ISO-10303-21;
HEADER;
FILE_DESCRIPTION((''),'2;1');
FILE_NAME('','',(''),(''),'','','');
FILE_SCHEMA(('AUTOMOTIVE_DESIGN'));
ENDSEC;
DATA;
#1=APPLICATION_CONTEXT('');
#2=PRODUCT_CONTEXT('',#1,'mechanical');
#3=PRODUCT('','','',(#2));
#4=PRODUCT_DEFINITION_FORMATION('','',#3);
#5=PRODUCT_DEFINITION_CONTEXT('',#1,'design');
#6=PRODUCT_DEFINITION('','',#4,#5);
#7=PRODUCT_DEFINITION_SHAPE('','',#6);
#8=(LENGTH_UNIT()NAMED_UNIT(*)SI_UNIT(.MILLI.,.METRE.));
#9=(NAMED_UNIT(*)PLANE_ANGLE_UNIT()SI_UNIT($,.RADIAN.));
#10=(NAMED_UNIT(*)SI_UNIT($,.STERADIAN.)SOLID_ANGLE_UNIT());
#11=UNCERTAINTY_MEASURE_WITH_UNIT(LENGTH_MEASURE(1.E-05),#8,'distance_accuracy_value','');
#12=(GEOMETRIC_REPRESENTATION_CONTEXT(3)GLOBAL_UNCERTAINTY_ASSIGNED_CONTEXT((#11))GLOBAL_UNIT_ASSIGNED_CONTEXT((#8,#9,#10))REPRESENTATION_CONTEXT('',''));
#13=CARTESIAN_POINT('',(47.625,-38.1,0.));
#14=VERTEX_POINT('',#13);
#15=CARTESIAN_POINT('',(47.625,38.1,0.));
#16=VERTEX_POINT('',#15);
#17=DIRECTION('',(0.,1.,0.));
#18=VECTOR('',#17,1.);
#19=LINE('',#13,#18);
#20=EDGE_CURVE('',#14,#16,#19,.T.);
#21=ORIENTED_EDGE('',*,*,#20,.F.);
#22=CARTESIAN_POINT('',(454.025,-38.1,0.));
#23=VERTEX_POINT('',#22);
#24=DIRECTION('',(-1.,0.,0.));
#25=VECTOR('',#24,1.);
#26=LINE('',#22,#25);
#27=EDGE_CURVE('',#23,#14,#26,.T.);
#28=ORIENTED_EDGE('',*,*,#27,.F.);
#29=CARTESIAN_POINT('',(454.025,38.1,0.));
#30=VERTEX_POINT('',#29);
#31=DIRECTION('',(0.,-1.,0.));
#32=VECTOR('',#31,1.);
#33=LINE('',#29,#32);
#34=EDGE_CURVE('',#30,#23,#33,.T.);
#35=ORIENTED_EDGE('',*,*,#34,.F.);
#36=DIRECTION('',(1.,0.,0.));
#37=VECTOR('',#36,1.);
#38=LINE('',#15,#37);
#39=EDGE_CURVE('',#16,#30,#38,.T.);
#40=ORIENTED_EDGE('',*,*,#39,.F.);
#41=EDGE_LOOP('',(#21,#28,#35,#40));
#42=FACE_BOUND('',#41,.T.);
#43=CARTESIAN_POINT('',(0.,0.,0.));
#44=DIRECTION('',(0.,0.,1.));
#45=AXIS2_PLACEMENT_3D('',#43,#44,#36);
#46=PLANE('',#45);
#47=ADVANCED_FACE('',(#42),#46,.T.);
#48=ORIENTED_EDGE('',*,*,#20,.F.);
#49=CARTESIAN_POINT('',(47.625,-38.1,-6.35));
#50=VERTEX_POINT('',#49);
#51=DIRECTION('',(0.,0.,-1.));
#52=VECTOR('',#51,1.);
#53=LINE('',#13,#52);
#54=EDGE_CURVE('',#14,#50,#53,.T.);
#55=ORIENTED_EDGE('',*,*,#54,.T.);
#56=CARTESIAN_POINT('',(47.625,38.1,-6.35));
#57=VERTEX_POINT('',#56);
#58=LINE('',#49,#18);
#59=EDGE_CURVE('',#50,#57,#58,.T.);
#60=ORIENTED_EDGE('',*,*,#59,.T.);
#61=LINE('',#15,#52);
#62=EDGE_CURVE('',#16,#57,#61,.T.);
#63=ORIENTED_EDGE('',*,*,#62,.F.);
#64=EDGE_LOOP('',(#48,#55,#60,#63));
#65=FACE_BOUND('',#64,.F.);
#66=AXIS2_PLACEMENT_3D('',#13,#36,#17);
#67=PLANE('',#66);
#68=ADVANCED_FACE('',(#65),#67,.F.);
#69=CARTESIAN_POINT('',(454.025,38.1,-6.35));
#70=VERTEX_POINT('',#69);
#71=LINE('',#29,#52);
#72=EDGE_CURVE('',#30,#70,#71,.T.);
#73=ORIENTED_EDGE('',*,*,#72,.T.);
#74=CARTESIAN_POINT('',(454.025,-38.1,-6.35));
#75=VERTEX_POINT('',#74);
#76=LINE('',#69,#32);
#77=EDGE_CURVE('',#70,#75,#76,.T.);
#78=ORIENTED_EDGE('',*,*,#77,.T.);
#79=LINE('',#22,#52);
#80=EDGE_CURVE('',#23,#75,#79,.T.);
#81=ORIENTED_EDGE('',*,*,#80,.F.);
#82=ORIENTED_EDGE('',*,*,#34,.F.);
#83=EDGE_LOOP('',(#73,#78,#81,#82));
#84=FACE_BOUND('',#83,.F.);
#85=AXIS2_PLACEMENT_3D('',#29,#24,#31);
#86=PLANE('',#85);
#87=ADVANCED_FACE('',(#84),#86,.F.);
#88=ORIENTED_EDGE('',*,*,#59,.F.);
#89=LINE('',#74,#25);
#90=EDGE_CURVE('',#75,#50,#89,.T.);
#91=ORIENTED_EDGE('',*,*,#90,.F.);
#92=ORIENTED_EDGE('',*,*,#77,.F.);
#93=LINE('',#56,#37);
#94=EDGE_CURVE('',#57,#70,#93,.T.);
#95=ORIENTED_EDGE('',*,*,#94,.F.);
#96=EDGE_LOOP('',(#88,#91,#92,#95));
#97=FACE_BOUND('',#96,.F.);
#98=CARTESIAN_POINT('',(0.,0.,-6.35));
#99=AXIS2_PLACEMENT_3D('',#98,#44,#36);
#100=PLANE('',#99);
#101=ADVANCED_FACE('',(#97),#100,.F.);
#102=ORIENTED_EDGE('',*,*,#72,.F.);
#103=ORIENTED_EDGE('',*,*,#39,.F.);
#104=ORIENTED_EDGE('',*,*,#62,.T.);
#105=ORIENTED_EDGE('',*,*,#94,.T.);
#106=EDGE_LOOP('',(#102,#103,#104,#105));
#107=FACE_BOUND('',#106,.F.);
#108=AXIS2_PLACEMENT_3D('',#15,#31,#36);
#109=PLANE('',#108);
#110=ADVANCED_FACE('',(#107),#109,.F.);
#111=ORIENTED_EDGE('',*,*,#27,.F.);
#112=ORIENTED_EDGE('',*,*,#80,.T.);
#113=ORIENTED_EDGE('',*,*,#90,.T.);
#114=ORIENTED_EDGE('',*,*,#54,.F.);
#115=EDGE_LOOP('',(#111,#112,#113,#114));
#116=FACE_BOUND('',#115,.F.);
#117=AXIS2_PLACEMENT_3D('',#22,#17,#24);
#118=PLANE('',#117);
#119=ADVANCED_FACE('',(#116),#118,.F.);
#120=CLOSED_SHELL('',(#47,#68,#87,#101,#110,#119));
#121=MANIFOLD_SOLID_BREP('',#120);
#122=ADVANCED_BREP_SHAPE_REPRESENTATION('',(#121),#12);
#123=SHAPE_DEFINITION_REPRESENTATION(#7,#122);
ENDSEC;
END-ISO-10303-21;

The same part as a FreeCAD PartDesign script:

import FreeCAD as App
import Part
import Sketcher
Q = App.Units.Quantity

doc = App.newDocument("Part")
body = doc.addObject("PartDesign::Body", "Body")

# Sketch on XY plane
sketch1 = body.newObject("Sketcher::SketchObject", "Sketch")
sketch1.AttachmentSupport = (doc.getObject("XY_Plane"), [""])
sketch1.MapMode = "FlatFace"
sketch1.addGeometry(Part.LineSegment(App.Vector(454, 38, 0), App.Vector(48, 38, 0)), False)
sketch1.addGeometry(Part.LineSegment(App.Vector(48, 38, 0), App.Vector(48, -38, 0)), False)
sketch1.addGeometry(Part.LineSegment(App.Vector(48, -38, 0), App.Vector(454, -38, 0)), False)
sketch1.addGeometry(Part.LineSegment(App.Vector(454, -38, 0), App.Vector(454, 38, 0)), False)
sketch1.addConstraint(Sketcher.Constraint("Coincident", 0, 2, 1, 1))
sketch1.addConstraint(Sketcher.Constraint("Coincident", 1, 2, 2, 1))
sketch1.addConstraint(Sketcher.Constraint("Coincident", 2, 2, 3, 1))
sketch1.addConstraint(Sketcher.Constraint("Coincident", 3, 2, 0, 1))
sketch1.addConstraint(Sketcher.Constraint("Horizontal", 0))
sketch1.addConstraint(Sketcher.Constraint("Vertical", 1))
sketch1.addConstraint(Sketcher.Constraint("Horizontal", 2))
sketch1.addConstraint(Sketcher.Constraint("Vertical", 3))
sketch1.addConstraint(Sketcher.Constraint("DistanceX", 0, 2, 0, 1, Q("16 in")))
sketch1.addConstraint(Sketcher.Constraint("DistanceY", 1, 2, 1, 1, Q("3 in")))
sketch1.addConstraint(Sketcher.Constraint("DistanceY", -1, 1, 0, 2, Q("1.5 in")))
sketch1.addConstraint(Sketcher.Constraint("DistanceX", -1, 1, 0, 2, Q("1.875 in")))
pad1 = body.newObject("PartDesign::Pad", "Pad")
pad1.Profile = sketch1
pad1.Length = Q("0.25 in")
pad1.Reversed = True

doc.recompute()
